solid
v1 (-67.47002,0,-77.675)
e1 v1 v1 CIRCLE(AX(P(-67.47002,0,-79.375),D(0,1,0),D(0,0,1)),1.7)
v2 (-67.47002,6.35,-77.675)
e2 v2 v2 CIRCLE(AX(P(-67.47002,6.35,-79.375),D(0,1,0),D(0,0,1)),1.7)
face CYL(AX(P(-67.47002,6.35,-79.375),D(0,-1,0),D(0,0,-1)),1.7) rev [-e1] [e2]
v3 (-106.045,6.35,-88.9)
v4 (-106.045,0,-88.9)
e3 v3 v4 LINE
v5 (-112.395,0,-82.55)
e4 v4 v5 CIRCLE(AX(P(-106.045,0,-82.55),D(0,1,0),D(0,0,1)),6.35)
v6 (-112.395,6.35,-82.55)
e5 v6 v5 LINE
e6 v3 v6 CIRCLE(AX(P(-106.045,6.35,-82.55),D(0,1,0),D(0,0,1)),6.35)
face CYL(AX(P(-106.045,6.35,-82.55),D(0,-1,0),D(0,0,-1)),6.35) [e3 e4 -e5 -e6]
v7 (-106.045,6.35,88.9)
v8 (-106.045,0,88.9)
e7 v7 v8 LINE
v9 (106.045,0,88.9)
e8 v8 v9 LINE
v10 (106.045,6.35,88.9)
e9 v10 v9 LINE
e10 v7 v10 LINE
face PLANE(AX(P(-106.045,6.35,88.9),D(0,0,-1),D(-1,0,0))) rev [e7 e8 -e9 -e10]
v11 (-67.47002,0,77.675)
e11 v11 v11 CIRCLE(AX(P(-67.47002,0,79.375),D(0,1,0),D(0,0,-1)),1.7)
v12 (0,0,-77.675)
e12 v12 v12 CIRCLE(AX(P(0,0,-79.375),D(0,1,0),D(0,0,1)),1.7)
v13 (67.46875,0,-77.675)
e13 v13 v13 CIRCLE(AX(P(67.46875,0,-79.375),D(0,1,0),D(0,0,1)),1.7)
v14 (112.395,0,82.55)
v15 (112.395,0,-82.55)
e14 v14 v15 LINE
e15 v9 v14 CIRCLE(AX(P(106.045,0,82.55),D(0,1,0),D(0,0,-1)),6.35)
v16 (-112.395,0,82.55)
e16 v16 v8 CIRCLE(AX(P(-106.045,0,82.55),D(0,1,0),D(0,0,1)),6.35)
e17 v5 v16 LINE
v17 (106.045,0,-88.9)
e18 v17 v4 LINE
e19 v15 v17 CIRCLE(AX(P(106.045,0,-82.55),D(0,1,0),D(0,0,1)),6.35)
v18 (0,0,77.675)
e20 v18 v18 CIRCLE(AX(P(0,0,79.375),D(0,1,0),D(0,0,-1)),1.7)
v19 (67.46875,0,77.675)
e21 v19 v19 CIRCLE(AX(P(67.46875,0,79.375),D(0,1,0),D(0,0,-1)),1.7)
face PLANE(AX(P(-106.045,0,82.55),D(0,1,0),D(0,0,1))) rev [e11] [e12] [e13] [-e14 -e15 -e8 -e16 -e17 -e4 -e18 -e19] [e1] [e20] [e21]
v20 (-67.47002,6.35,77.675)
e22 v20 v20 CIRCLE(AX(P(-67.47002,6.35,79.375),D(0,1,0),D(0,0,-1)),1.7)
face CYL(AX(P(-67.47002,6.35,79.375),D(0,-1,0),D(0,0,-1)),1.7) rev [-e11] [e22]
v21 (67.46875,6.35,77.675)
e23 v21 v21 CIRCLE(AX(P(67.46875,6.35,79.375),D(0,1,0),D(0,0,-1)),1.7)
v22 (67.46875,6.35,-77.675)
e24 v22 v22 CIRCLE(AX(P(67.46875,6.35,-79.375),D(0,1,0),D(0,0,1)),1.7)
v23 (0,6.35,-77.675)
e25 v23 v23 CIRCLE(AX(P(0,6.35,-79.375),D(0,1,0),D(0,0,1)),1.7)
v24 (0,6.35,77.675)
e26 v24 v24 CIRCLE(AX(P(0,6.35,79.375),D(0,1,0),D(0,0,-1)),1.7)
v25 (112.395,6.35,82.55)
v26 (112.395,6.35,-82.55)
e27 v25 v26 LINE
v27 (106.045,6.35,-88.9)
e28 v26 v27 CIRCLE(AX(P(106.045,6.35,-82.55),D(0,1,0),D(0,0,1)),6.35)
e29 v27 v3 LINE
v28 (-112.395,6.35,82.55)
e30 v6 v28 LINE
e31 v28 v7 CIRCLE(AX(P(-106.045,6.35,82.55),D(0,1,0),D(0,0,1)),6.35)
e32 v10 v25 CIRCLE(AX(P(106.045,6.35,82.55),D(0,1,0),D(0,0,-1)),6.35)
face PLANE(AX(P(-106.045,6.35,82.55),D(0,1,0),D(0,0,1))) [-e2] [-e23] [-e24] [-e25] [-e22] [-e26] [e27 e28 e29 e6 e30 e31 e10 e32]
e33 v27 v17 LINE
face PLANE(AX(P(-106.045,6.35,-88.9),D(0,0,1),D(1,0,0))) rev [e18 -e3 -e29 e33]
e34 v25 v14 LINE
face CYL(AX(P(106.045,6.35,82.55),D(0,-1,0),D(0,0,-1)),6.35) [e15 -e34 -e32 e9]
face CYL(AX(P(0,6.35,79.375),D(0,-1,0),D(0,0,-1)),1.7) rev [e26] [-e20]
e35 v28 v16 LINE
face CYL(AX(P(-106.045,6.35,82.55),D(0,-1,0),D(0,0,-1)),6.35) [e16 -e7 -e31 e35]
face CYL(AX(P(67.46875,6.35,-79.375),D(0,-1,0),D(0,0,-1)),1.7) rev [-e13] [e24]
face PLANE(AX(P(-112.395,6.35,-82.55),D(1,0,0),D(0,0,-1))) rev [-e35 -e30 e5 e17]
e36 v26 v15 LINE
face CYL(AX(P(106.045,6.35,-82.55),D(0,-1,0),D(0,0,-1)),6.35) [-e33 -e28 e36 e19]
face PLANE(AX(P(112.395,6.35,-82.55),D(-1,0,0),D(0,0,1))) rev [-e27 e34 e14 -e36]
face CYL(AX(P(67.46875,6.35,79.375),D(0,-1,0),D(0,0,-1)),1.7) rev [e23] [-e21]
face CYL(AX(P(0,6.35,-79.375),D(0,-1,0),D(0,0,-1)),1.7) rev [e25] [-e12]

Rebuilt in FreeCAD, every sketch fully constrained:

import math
import FreeCAD as App
import Part
import Sketcher
from FreeCAD import Vector
Q = App.Units.Quantity

doc = App.newDocument("Part")
body = doc.addObject("PartDesign::Body", "Body")

# Sketch on XZ plane
sketch1 = body.newObject("Sketcher::SketchObject", "Sketch")
sketch1.AttachmentSupport = (doc.getObject("XZ_Plane"), [""])
sketch1.MapMode = "FlatFace"
sketch1.addGeometry(Part.LineSegment(Vector(106, -88.9, 0), Vector(-106, -88.9, 0)), False)
sketch1.addGeometry(Part.ArcOfCircle(Part.Circle(Vector(-106, -82.6, 0), Vector(0, 0, 1), 6.3), math.radians(180), math.radians(270)), False)
sketch1.addGeometry(Part.LineSegment(Vector(-112.4, -82.5, 0), Vector(-112.4, 82.5, 0)), False)
sketch1.addGeometry(Part.ArcOfCircle(Part.Circle(Vector(-106, 82.6, 0), Vector(0, 0, 1), 6.3), math.radians(90), math.radians(180)), False)
sketch1.addGeometry(Part.LineSegment(Vector(-106, 88.9, 0), Vector(106, 88.9, 0)), False)
sketch1.addGeometry(Part.ArcOfCircle(Part.Circle(Vector(106, 82.6, 0), Vector(0, 0, 1), 6.3), math.radians(0), math.radians(90)), False)
sketch1.addGeometry(Part.LineSegment(Vector(112.4, 82.5, 0), Vector(112.4, -82.5, 0)), False)
sketch1.addGeometry(Part.ArcOfCircle(Part.Circle(Vector(106, -82.6, 0), Vector(0, 0, 1), 6.3), math.radians(-90), math.radians(0)), False)
sketch1.addGeometry(Part.Circle(Vector(67.5, 79.4, 0), Vector(0, 0, 1), 1.7), False)
sketch1.addGeometry(Part.Circle(Vector(0, 79.4, 0), Vector(0, 0, 1), 1.7), False)
sketch1.addGeometry(Part.Circle(Vector(-67.5, 79.4, 0), Vector(0, 0, 1), 1.7), False)
sketch1.addGeometry(Part.Circle(Vector(67.5, -79.4, 0), Vector(0, 0, 1), 1.7), False)
sketch1.addGeometry(Part.Circle(Vector(0, -79.4, 0), Vector(0, 0, 1), 1.7), False)
sketch1.addGeometry(Part.Circle(Vector(-67.5, -79.4, 0), Vector(0, 0, 1), 1.7), False)
sketch1.addConstraint(Sketcher.Constraint("Tangent", 0, 2, 1, 2))
sketch1.addConstraint(Sketcher.Constraint("Tangent", 1, 1, 2, 1))
sketch1.addConstraint(Sketcher.Constraint("Tangent", 2, 2, 3, 2))
sketch1.addConstraint(Sketcher.Constraint("Tangent", 3, 1, 4, 1))
sketch1.addConstraint(Sketcher.Constraint("Tangent", 4, 2, 5, 2))
sketch1.addConstraint(Sketcher.Constraint("Tangent", 5, 1, 6, 1))
sketch1.addConstraint(Sketcher.Constraint("Tangent", 6, 2, 7, 2))
sketch1.addConstraint(Sketcher.Constraint("Tangent", 7, 1, 0, 1))
sketch1.addConstraint(Sketcher.Constraint("Horizontal", 0))
sketch1.addConstraint(Sketcher.Constraint("Vertical", 2))
sketch1.addConstraint(Sketcher.Constraint("Horizontal", 4))
sketch1.addConstraint(Sketcher.Constraint("Vertical", 6))
sketch1.addConstraint(Sketcher.Constraint("Equal", 1, 3))
sketch1.addConstraint(Sketcher.Constraint("Equal", 3, 5))
sketch1.addConstraint(Sketcher.Constraint("Equal", 5, 7))
sketch1.addConstraint(Sketcher.Constraint("Equal", 8, 9))
sketch1.addConstraint(Sketcher.Constraint("Equal", 9, 10))
sketch1.addConstraint(Sketcher.Constraint("Equal", 10, 11))
sketch1.addConstraint(Sketcher.Constraint("Equal", 11, 12))
sketch1.addConstraint(Sketcher.Constraint("Equal", 12, 13))
sketch1.addConstraint(Sketcher.Constraint("Symmetric", 1, 3, 5, 3, -1, 1))
sketch1.addConstraint(Sketcher.Constraint("Symmetric", 9, 3, 12, 3, -1, 1))
sketch1.addConstraint(Sketcher.Constraint("Symmetric", 8, 3, 11, 3, -1))
sketch1.addConstraint(Sketcher.Constraint("Symmetric", 10, 3, 13, 3, -1))
sketch1.addConstraint(Sketcher.Constraint("PointOnObject", 9, 3, -2))
sketch1.addConstraint(Sketcher.Constraint("Horizontal", 8, 3, 9, 3))
sketch1.addConstraint(Sketcher.Constraint("Horizontal", 9, 3, 10, 3))
sketch1.addConstraint(Sketcher.Constraint("Radius", 1, Q("0.25 in")))
sketch1.addConstraint(Sketcher.Constraint("DistanceY", 2, 1, 2, 2, Q("6.5 in")))
sketch1.addConstraint(Sketcher.Constraint("DistanceX", 0, 2, 0, 1, Q("8.35 in")))
sketch1.addConstraint(Sketcher.Constraint("Diameter", 8, 3.4))
sketch1.addConstraint(Sketcher.Constraint("DistanceY", 11, 3, 8, 3, Q("6.25 in")))
sketch1.addConstraint(Sketcher.Constraint("DistanceX", -1, 1, 8, 3, Q("2.65625 in")))
sketch1.addConstraint(Sketcher.Constraint("DistanceX", 10, 3, -1, 1, Q("2.6563 in")))
pad1 = body.newObject("PartDesign::Pad", "Pad")
pad1.Profile = sketch1
pad1.Length = Q("0.25 in")
pad1.Reversed = True

doc.recompute()
